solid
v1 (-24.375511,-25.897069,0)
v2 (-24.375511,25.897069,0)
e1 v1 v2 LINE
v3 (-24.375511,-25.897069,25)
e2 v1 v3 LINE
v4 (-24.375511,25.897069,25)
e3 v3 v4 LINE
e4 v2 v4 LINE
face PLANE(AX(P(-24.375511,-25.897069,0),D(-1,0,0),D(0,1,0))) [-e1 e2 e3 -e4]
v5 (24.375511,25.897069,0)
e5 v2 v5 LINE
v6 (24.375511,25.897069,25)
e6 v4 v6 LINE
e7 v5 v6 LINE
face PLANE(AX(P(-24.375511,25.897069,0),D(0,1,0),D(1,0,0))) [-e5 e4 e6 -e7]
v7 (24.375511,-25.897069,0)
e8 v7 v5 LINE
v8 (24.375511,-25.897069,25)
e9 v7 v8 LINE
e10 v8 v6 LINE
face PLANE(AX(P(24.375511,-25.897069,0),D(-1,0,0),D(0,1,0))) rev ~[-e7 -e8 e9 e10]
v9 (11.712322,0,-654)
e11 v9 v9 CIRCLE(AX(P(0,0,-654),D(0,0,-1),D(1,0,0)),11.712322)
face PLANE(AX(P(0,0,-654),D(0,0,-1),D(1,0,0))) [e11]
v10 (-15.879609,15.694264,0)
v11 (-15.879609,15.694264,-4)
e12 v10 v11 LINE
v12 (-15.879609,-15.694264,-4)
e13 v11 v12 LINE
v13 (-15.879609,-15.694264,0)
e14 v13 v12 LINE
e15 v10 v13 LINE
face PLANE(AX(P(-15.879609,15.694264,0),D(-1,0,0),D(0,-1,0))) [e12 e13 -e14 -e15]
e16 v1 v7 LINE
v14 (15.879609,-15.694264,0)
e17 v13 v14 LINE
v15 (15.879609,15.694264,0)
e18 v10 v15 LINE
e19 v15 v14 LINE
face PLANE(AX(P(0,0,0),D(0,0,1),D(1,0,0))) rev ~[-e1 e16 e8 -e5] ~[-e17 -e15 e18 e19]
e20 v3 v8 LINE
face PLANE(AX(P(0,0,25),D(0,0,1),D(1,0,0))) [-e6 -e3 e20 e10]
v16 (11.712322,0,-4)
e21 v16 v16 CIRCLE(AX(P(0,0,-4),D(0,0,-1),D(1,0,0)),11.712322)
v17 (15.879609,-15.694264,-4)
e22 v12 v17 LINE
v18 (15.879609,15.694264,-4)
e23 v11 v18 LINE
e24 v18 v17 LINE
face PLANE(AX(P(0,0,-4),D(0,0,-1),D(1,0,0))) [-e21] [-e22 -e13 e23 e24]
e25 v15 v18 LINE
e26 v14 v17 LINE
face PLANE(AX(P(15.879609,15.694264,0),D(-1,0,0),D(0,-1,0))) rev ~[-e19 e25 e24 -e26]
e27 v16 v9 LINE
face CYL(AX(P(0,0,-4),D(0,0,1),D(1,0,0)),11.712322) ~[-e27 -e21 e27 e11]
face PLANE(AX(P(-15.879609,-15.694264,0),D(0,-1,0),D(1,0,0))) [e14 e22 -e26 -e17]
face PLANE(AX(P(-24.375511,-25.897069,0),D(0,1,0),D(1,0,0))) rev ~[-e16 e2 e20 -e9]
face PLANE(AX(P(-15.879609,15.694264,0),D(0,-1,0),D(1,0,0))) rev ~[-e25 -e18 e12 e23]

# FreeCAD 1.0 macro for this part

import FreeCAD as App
import Part
import Sketcher

V = App.Vector
Q = App.Units.Quantity


def add_polygon(sketch, points):
    """Adds a closed chain of lines whose ends are joined by coincident constraints."""
    first, n = sketch.GeometryCount, len(points)
    for a, b in zip(points, points[1:] + points[:1]):
        sketch.addGeometry(Part.LineSegment(App.Vector(*a, 0), App.Vector(*b, 0)), False)
    for i in range(n):
        sketch.addConstraint(Sketcher.Constraint("Coincident", first + i, 2, first + (i + 1) % n, 1))

doc = App.newDocument("Part")
body = doc.addObject("PartDesign::Body", "Body")

# Sketch on XY plane
sketch1 = body.newObject("Sketcher::SketchObject", "Sketch")
sketch1.AttachmentSupport = (doc.getObject("XY_Plane"), [""])
sketch1.MapMode = "FlatFace"
add_polygon(sketch1, [(-24, 26), (-24, -26), (24, -26), (24, 26)])  # lines 0-3
sketch1.addConstraint(Sketcher.Constraint("Vertical", 0))
sketch1.addConstraint(Sketcher.Constraint("Horizontal", 1))
sketch1.addConstraint(Sketcher.Constraint("Vertical", 2))
sketch1.addConstraint(Sketcher.Constraint("Horizontal", 3))
sketch1.addConstraint(Sketcher.Constraint("Symmetric", 0, 2, 2, 2, -1, 1))
sketch1.addConstraint(Sketcher.Constraint("DistanceX", 1, 1, 1, 2, Q("48.751022 mm")))
sketch1.addConstraint(Sketcher.Constraint("DistanceY", 0, 2, 0, 1, Q("51.794138 mm")))
pad1 = body.newObject("PartDesign::Pad", "Pad")
pad1.Profile = sketch1
pad1.Length = 25

# Sketch on XY plane
sketch2 = body.newObject("Sketcher::SketchObject", "Sketch001")
sketch2.AttachmentSupport = (doc.getObject("XY_Plane"), [""])
sketch2.MapMode = "FlatFace"
add_polygon(sketch2, [(-16, -16), (-16, 16), (16, 16), (16, -16)])  # lines 0-3
sketch2.addConstraint(Sketcher.Constraint("Vertical", 0))
sketch2.addConstraint(Sketcher.Constraint("Horizontal", 1))
sketch2.addConstraint(Sketcher.Constraint("Vertical", 2))
sketch2.addConstraint(Sketcher.Constraint("Horizontal", 3))
sketch2.addConstraint(Sketcher.Constraint("Symmetric", 0, 2, 2, 2, -1, 1))
sketch2.addConstraint(Sketcher.Constraint("DistanceX", 1, 1, 1, 2, Q("31.759218 mm")))
sketch2.addConstraint(Sketcher.Constraint("DistanceY", 0, 1, 0, 2, Q("31.388528 mm")))
pad2 = body.newObject("PartDesign::Pad", "Pad001")
pad2.Profile = sketch2
pad2.Length = 4
pad2.Reversed = True

# Sketch on XY plane
sketch3 = body.newObject("Sketcher::SketchObject", "Sketch002")
sketch3.AttachmentSupport = (doc.getObject("XY_Plane"), [""])
sketch3.MapMode = "FlatFace"
sketch3.AttachmentOffset = App.Placement(V(0, 0, -4), App.Rotation())
sketch3.addGeometry(Part.Circle(V(0, 0, 0), V(0, 0, 1), 12), False)
sketch3.addConstraint(Sketcher.Constraint("Coincident", 0, 3, -1, 1))
sketch3.addConstraint(Sketcher.Constraint("Diameter", 0, Q("23.424644 mm")))
pad3 = body.newObject("PartDesign::Pad", "Pad002")
pad3.Profile = sketch3
pad3.Length = 650
pad3.Reversed = True

doc.recompute()
